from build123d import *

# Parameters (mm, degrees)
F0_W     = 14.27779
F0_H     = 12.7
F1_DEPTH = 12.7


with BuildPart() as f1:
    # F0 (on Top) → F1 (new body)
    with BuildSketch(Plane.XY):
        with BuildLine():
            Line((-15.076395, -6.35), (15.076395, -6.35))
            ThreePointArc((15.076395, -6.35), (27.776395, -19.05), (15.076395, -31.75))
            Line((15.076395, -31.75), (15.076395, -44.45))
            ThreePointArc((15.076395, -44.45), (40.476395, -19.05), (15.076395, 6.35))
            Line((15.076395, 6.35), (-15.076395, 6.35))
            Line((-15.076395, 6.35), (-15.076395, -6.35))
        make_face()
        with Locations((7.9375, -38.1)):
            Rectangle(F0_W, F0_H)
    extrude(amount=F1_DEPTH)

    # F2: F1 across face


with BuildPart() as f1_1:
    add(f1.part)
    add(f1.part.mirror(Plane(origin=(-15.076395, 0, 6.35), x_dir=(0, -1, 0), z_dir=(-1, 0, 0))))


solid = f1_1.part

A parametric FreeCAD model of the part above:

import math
import FreeCAD as App
import Part
import Sketcher
from FreeCAD import Vector
Q = App.Units.Quantity

doc = App.newDocument("Part")
body = doc.addObject("PartDesign::Body", "Body")

# Sketch on XY plane
sketch1 = doc.addObject("Sketcher::SketchObject", "Sketch")
body.addObject(sketch1)
sketch1.AttachmentSupport = (doc.XY_Plane, [""])
sketch1.MapMode = "FlatFace"
sketch1.addGeometry(Part.LineSegment(Vector(-15, -6, 0), Vector(15, -6, 0)), False)
sketch1.addGeometry(Part.ArcOfCircle(Part.Circle(Vector(15, -19, 0), Vector(0, 0, 1), 13), math.radians(-90), math.radians(90)), False)
sketch1.addGeometry(Part.LineSegment(Vector(15, -32, 0), Vector(1, -32, 0)), False)
sketch1.addGeometry(Part.LineSegment(Vector(1, -32, 0), Vector(1, -44, 0)), False)
sketch1.addGeometry(Part.LineSegment(Vector(1, -44, 0), Vector(15, -44, 0)), False)
sketch1.addGeometry(Part.ArcOfCircle(Part.Circle(Vector(15, -19, 0), Vector(0, 0, 1), 25), math.radians(-90), math.radians(90)), False)
sketch1.addGeometry(Part.LineSegment(Vector(15, 6, 0), Vector(-15, 6, 0)), False)
sketch1.addGeometry(Part.LineSegment(Vector(-15, 6, 0), Vector(-15, -6, 0)), False)
sketch1.addConstraint(Sketcher.Constraint("Tangent", 0, 2, 1, 2))
sketch1.addConstraint(Sketcher.Constraint("Tangent", 1, 1, 2, 1))
sketch1.addConstraint(Sketcher.Constraint("Coincident", 2, 2, 3, 1))
sketch1.addConstraint(Sketcher.Constraint("Coincident", 3, 2, 4, 1))
sketch1.addConstraint(Sketcher.Constraint("Tangent", 4, 2, 5, 1))
sketch1.addConstraint(Sketcher.Constraint("Tangent", 5, 2, 6, 1))
sketch1.addConstraint(Sketcher.Constraint("Coincident", 6, 2, 7, 1))
sketch1.addConstraint(Sketcher.Constraint("Coincident", 7, 2, 0, 1))
sketch1.addConstraint(Sketcher.Constraint("Horizontal", 0))
sketch1.addConstraint(Sketcher.Constraint("Horizontal", 2))
sketch1.addConstraint(Sketcher.Constraint("Vertical", 3))
sketch1.addConstraint(Sketcher.Constraint("Horizontal", 4))
sketch1.addConstraint(Sketcher.Constraint("Horizontal", 6))
sketch1.addConstraint(Sketcher.Constraint("Vertical", 7))
sketch1.addConstraint(Sketcher.Constraint("Coincident", 5, 3, 1, 3))
sketch1.addConstraint(Sketcher.Constraint("Symmetric", 0, 2, 6, 2, -1, 1))
sketch1.addConstraint(Sketcher.Constraint("Radius", 5, Q("1 in")))
sketch1.addConstraint(Sketcher.Constraint("Radius", 1, Q("0.5 in")))
sketch1.addConstraint(Sketcher.Constraint("DistanceX", 6, 2, 2, 2, Q("0.625 in")))
sketch1.addConstraint(Sketcher.Constraint("DistanceX", 0, 1, 0, 2, 30.15279))
pad1 = doc.addObject("PartDesign::Pad", "Pad")
body.addObject(pad1)
pad1.Profile = sketch1
pad1.Length = Q("0.5 in")
body2 = doc.addObject("PartDesign::Body", "Body001")
doc.recompute()

body2.BaseFeature = body
doc.recompute()

mirroring = doc.addObject("Part::Mirroring", "Mirroring")
mirroring.Source = body
mirroring.Base = Vector(-15.076395, 0, 6.35)
mirroring.Normal = Vector(-1, 0, 0)
body3 = doc.addObject("PartDesign::Body", "Body002")
body3.BaseFeature = mirroring
boolean = doc.addObject("PartDesign::Boolean", "Boolean")
body2.addObject(boolean)
boolean.Type = "Fuse"
boolean.addObjects([body3])
doc.recompute()
mirroring.Visibility = False

doc.recompute()
